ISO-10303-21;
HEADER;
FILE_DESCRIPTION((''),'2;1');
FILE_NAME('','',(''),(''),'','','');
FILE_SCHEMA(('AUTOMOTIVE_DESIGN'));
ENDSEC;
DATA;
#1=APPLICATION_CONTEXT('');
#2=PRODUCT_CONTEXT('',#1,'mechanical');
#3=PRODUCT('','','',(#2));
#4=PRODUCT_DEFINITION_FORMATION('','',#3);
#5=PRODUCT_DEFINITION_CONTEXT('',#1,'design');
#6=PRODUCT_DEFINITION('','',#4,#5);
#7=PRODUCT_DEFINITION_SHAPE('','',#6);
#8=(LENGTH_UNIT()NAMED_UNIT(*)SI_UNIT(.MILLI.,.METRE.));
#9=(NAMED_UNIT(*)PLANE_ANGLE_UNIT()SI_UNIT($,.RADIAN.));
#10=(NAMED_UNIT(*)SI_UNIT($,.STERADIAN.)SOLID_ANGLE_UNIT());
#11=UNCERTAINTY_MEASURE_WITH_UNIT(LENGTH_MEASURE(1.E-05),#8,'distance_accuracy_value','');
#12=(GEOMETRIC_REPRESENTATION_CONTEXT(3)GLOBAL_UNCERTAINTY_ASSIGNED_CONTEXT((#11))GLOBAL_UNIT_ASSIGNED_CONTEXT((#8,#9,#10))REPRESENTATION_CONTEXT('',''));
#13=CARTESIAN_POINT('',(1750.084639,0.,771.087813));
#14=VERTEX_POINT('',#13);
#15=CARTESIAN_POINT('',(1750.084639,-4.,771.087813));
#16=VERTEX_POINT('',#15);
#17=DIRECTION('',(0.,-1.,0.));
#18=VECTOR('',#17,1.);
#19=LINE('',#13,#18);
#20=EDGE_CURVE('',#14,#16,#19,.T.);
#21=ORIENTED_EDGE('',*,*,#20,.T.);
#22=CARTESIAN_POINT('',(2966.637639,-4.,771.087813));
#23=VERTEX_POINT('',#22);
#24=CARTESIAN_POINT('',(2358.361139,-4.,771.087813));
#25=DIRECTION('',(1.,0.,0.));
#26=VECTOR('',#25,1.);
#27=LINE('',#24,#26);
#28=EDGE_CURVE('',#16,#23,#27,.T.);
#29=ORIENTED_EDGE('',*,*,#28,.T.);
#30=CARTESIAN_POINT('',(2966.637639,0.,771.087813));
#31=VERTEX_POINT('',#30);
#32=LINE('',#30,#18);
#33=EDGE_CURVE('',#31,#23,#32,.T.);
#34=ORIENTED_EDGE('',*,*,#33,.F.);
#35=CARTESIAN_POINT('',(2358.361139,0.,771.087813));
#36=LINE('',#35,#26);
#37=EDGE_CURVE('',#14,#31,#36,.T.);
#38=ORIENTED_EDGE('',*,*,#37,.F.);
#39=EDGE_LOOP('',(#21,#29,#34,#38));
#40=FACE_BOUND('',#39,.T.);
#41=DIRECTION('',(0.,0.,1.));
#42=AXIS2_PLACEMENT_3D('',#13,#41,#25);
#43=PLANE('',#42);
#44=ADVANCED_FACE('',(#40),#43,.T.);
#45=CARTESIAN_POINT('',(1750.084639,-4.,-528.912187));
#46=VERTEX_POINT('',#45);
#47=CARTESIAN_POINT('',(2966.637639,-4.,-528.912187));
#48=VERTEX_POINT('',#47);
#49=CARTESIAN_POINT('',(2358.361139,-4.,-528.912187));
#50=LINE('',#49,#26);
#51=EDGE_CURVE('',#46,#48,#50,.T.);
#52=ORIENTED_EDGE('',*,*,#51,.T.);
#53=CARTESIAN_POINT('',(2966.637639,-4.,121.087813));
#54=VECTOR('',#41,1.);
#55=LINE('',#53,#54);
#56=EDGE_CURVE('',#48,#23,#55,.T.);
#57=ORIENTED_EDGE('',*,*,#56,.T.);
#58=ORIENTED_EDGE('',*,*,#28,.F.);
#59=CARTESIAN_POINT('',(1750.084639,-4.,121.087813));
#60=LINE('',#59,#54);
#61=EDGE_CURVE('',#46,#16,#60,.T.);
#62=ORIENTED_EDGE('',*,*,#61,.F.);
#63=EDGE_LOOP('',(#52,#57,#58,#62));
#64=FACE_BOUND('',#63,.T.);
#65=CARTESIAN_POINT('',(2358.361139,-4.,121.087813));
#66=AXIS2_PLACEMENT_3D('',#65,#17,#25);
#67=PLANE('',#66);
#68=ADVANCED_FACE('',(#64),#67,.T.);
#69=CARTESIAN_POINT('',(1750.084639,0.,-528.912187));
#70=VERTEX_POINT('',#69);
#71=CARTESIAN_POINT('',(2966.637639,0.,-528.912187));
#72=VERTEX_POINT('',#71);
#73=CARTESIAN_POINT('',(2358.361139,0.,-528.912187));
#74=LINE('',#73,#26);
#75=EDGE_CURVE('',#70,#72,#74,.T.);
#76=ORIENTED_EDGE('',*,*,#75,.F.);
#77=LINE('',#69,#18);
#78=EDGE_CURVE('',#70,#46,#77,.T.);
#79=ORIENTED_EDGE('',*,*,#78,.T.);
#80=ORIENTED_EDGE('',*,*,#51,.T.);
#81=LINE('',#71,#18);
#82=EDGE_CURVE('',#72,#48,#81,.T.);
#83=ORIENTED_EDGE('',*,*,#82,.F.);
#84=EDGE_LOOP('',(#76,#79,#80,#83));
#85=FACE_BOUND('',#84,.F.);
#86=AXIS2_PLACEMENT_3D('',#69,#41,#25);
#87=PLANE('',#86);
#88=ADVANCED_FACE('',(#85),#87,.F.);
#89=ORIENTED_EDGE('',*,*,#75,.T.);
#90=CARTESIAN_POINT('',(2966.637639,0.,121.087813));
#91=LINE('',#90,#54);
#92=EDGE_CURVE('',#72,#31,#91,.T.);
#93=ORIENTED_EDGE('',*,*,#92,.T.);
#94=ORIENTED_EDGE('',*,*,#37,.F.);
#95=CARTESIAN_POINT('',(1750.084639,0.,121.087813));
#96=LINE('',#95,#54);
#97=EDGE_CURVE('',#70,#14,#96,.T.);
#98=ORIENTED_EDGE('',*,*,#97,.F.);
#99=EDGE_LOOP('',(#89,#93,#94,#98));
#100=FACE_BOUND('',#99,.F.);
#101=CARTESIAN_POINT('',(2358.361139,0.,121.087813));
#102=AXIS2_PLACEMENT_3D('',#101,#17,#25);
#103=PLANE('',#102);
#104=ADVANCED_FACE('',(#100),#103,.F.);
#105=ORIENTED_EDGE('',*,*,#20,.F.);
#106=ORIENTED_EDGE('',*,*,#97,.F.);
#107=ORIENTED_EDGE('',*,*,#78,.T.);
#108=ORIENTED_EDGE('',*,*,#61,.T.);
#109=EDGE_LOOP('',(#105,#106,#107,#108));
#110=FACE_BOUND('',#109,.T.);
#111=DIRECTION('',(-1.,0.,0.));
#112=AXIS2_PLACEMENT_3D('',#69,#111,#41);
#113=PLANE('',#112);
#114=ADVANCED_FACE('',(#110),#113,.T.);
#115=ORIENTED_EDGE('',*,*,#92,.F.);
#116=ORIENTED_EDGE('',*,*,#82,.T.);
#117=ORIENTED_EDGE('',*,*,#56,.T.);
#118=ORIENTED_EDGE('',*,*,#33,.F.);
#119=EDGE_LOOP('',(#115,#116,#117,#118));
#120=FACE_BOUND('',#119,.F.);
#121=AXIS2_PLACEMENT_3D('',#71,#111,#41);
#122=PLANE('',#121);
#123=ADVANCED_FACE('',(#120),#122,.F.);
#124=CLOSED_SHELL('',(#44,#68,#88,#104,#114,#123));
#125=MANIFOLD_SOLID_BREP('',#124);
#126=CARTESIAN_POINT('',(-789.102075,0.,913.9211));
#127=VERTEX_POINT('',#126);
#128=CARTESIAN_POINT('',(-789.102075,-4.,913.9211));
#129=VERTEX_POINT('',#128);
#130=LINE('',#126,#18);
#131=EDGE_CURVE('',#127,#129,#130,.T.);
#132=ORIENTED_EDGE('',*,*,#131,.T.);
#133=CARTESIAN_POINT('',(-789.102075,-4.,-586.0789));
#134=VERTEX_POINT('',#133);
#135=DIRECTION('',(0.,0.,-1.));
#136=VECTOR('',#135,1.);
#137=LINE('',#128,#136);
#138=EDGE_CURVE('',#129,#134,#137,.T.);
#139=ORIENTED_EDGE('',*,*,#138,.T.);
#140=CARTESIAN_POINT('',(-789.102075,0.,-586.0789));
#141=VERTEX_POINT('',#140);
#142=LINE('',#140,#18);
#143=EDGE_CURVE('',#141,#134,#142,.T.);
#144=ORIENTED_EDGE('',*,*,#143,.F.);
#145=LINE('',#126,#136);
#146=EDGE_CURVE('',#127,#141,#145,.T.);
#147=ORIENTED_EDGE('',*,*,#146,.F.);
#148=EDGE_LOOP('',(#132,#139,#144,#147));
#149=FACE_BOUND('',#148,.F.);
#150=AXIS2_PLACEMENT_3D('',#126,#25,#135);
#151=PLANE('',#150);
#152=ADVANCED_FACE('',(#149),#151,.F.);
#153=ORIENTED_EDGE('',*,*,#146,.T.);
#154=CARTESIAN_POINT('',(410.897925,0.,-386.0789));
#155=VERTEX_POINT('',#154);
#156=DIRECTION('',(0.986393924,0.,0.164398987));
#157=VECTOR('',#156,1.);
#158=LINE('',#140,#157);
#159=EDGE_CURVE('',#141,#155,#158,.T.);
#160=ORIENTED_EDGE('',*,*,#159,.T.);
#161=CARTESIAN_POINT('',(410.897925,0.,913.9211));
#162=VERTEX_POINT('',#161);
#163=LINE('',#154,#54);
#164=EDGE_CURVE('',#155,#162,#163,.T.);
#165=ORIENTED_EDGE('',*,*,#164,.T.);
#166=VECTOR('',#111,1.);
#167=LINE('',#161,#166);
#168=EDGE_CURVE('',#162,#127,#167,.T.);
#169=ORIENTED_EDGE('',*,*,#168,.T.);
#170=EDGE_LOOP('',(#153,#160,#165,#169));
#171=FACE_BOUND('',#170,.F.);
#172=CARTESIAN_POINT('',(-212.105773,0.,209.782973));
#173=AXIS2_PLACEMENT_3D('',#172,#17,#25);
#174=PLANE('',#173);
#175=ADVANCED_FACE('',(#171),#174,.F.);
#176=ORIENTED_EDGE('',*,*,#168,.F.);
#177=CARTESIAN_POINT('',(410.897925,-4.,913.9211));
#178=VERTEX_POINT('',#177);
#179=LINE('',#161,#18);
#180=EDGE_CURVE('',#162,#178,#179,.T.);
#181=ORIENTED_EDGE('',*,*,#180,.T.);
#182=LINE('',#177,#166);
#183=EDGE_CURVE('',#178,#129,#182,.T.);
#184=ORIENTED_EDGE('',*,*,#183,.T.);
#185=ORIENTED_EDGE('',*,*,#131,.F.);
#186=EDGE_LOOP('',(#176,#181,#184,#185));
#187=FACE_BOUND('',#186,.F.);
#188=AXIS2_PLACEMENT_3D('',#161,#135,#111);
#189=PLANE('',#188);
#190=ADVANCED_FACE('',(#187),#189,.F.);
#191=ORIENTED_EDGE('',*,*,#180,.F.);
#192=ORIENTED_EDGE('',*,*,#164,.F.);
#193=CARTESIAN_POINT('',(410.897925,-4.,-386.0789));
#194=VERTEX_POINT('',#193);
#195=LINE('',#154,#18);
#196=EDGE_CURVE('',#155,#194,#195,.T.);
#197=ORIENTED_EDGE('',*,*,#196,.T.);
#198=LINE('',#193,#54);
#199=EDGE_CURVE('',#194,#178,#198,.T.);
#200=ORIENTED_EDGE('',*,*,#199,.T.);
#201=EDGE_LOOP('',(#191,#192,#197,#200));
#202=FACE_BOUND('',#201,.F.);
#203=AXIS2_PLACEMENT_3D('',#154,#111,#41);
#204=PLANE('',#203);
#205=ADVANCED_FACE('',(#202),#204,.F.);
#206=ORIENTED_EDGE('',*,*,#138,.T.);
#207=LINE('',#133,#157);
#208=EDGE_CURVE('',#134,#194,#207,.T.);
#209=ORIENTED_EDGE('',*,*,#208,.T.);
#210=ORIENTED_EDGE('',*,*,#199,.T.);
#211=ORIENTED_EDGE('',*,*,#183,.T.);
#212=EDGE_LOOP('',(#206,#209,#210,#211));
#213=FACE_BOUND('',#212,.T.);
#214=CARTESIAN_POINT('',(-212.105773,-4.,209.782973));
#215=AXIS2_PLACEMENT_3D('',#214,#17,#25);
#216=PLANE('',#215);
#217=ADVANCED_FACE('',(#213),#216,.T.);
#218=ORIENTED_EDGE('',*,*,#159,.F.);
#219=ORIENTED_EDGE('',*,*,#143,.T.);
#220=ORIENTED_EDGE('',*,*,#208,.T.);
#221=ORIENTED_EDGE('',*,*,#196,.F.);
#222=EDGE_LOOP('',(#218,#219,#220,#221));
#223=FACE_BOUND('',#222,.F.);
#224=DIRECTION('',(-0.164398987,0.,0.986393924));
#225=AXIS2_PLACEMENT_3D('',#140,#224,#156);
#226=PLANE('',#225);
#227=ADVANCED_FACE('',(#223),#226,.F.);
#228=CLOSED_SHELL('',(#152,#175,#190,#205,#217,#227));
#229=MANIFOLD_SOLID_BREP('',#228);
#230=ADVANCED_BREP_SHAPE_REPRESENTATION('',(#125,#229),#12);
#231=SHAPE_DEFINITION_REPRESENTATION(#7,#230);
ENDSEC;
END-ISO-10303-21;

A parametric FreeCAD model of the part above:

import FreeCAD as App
import Part
import Sketcher
Q = App.Units.Quantity


def add_polygon(sketch, points):
    """Adds a closed chain of lines whose ends are joined by coincident constraints."""
    first, n = sketch.GeometryCount, len(points)
    for a, b in zip(points, points[1:] + points[:1]):
        sketch.addGeometry(Part.LineSegment(App.Vector(*a, 0), App.Vector(*b, 0)), False)
    for i in range(n):
        sketch.addConstraint(Sketcher.Constraint("Coincident", first + i, 2, first + (i + 1) % n, 1))

doc = App.newDocument("Part")
body = doc.addObject("PartDesign::Body", "Body")

sketch1 = doc.addObject("Sketcher::SketchObject", "Sketch")
body.addObject(sketch1)
sketch1.AttachmentSupport = (doc.XZ_Plane, [""])
sketch1.MapMode = "FlatFace"
add_polygon(sketch1, [(411, 914), (-789, 914), (-789, -586), (411, -386)])
sketch1.addConstraint(Sketcher.Constraint("Horizontal", 0))
sketch1.addConstraint(Sketcher.Constraint("Vertical", 1))
sketch1.addConstraint(Sketcher.Constraint("Vertical", 3))
sketch1.addConstraint(Sketcher.Constraint("DistanceX", 0, 2, 0, 1, Q("1200 mm")))
sketch1.addConstraint(Sketcher.Constraint("DistanceY", 1, 2, 1, 1, Q("1500 mm")))
sketch1.addConstraint(Sketcher.Constraint("DistanceY", 3, 1, 3, 2, Q("1300 mm")))
sketch1.addConstraint(Sketcher.Constraint("DistanceY", -1, 1, 0, 2, Q("913.9211 mm")))
sketch1.addConstraint(Sketcher.Constraint("DistanceX", 0, 2, -1, 1, Q("789.102075 mm")))
pad1 = doc.addObject("PartDesign::Pad", "Pad")
body.addObject(pad1)
pad1.Profile = sketch1
pad1.Length = 4
body2 = doc.addObject("PartDesign::Body", "Body001")

sketch2 = doc.addObject("Sketcher::SketchObject", "Sketch001")
body2.addObject(sketch2)
sketch2.AttachmentSupport = (doc.getObject("XZ_Plane001"), [""])
sketch2.MapMode = "FlatFace"
add_polygon(sketch2, [(1750, 771), (1750, -529), (2967, -529), (2967, 771)])
sketch2.addConstraint(Sketcher.Constraint("Vertical", 0))
sketch2.addConstraint(Sketcher.Constraint("Horizontal", 1))
sketch2.addConstraint(Sketcher.Constraint("Vertical", 2))
sketch2.addConstraint(Sketcher.Constraint("Horizontal", 3))
sketch2.addConstraint(Sketcher.Constraint("DistanceY", 0, 2, 0, 1, Q("1300 mm")))
sketch2.addConstraint(Sketcher.Constraint("DistanceX", 1, 1, 1, 2, Q("1216.553 mm")))
sketch2.addConstraint(Sketcher.Constraint("DistanceX", -1, 1, 0, 2, Q("1750.084639 mm")))
sketch2.addConstraint(Sketcher.Constraint("DistanceY", 0, 2, -1, 1, Q("528.912187 mm")))
pad2 = doc.addObject("PartDesign::Pad", "Pad001")
body2.addObject(pad2)
pad2.Profile = sketch2
pad2.Length = 4

doc.recompute()
